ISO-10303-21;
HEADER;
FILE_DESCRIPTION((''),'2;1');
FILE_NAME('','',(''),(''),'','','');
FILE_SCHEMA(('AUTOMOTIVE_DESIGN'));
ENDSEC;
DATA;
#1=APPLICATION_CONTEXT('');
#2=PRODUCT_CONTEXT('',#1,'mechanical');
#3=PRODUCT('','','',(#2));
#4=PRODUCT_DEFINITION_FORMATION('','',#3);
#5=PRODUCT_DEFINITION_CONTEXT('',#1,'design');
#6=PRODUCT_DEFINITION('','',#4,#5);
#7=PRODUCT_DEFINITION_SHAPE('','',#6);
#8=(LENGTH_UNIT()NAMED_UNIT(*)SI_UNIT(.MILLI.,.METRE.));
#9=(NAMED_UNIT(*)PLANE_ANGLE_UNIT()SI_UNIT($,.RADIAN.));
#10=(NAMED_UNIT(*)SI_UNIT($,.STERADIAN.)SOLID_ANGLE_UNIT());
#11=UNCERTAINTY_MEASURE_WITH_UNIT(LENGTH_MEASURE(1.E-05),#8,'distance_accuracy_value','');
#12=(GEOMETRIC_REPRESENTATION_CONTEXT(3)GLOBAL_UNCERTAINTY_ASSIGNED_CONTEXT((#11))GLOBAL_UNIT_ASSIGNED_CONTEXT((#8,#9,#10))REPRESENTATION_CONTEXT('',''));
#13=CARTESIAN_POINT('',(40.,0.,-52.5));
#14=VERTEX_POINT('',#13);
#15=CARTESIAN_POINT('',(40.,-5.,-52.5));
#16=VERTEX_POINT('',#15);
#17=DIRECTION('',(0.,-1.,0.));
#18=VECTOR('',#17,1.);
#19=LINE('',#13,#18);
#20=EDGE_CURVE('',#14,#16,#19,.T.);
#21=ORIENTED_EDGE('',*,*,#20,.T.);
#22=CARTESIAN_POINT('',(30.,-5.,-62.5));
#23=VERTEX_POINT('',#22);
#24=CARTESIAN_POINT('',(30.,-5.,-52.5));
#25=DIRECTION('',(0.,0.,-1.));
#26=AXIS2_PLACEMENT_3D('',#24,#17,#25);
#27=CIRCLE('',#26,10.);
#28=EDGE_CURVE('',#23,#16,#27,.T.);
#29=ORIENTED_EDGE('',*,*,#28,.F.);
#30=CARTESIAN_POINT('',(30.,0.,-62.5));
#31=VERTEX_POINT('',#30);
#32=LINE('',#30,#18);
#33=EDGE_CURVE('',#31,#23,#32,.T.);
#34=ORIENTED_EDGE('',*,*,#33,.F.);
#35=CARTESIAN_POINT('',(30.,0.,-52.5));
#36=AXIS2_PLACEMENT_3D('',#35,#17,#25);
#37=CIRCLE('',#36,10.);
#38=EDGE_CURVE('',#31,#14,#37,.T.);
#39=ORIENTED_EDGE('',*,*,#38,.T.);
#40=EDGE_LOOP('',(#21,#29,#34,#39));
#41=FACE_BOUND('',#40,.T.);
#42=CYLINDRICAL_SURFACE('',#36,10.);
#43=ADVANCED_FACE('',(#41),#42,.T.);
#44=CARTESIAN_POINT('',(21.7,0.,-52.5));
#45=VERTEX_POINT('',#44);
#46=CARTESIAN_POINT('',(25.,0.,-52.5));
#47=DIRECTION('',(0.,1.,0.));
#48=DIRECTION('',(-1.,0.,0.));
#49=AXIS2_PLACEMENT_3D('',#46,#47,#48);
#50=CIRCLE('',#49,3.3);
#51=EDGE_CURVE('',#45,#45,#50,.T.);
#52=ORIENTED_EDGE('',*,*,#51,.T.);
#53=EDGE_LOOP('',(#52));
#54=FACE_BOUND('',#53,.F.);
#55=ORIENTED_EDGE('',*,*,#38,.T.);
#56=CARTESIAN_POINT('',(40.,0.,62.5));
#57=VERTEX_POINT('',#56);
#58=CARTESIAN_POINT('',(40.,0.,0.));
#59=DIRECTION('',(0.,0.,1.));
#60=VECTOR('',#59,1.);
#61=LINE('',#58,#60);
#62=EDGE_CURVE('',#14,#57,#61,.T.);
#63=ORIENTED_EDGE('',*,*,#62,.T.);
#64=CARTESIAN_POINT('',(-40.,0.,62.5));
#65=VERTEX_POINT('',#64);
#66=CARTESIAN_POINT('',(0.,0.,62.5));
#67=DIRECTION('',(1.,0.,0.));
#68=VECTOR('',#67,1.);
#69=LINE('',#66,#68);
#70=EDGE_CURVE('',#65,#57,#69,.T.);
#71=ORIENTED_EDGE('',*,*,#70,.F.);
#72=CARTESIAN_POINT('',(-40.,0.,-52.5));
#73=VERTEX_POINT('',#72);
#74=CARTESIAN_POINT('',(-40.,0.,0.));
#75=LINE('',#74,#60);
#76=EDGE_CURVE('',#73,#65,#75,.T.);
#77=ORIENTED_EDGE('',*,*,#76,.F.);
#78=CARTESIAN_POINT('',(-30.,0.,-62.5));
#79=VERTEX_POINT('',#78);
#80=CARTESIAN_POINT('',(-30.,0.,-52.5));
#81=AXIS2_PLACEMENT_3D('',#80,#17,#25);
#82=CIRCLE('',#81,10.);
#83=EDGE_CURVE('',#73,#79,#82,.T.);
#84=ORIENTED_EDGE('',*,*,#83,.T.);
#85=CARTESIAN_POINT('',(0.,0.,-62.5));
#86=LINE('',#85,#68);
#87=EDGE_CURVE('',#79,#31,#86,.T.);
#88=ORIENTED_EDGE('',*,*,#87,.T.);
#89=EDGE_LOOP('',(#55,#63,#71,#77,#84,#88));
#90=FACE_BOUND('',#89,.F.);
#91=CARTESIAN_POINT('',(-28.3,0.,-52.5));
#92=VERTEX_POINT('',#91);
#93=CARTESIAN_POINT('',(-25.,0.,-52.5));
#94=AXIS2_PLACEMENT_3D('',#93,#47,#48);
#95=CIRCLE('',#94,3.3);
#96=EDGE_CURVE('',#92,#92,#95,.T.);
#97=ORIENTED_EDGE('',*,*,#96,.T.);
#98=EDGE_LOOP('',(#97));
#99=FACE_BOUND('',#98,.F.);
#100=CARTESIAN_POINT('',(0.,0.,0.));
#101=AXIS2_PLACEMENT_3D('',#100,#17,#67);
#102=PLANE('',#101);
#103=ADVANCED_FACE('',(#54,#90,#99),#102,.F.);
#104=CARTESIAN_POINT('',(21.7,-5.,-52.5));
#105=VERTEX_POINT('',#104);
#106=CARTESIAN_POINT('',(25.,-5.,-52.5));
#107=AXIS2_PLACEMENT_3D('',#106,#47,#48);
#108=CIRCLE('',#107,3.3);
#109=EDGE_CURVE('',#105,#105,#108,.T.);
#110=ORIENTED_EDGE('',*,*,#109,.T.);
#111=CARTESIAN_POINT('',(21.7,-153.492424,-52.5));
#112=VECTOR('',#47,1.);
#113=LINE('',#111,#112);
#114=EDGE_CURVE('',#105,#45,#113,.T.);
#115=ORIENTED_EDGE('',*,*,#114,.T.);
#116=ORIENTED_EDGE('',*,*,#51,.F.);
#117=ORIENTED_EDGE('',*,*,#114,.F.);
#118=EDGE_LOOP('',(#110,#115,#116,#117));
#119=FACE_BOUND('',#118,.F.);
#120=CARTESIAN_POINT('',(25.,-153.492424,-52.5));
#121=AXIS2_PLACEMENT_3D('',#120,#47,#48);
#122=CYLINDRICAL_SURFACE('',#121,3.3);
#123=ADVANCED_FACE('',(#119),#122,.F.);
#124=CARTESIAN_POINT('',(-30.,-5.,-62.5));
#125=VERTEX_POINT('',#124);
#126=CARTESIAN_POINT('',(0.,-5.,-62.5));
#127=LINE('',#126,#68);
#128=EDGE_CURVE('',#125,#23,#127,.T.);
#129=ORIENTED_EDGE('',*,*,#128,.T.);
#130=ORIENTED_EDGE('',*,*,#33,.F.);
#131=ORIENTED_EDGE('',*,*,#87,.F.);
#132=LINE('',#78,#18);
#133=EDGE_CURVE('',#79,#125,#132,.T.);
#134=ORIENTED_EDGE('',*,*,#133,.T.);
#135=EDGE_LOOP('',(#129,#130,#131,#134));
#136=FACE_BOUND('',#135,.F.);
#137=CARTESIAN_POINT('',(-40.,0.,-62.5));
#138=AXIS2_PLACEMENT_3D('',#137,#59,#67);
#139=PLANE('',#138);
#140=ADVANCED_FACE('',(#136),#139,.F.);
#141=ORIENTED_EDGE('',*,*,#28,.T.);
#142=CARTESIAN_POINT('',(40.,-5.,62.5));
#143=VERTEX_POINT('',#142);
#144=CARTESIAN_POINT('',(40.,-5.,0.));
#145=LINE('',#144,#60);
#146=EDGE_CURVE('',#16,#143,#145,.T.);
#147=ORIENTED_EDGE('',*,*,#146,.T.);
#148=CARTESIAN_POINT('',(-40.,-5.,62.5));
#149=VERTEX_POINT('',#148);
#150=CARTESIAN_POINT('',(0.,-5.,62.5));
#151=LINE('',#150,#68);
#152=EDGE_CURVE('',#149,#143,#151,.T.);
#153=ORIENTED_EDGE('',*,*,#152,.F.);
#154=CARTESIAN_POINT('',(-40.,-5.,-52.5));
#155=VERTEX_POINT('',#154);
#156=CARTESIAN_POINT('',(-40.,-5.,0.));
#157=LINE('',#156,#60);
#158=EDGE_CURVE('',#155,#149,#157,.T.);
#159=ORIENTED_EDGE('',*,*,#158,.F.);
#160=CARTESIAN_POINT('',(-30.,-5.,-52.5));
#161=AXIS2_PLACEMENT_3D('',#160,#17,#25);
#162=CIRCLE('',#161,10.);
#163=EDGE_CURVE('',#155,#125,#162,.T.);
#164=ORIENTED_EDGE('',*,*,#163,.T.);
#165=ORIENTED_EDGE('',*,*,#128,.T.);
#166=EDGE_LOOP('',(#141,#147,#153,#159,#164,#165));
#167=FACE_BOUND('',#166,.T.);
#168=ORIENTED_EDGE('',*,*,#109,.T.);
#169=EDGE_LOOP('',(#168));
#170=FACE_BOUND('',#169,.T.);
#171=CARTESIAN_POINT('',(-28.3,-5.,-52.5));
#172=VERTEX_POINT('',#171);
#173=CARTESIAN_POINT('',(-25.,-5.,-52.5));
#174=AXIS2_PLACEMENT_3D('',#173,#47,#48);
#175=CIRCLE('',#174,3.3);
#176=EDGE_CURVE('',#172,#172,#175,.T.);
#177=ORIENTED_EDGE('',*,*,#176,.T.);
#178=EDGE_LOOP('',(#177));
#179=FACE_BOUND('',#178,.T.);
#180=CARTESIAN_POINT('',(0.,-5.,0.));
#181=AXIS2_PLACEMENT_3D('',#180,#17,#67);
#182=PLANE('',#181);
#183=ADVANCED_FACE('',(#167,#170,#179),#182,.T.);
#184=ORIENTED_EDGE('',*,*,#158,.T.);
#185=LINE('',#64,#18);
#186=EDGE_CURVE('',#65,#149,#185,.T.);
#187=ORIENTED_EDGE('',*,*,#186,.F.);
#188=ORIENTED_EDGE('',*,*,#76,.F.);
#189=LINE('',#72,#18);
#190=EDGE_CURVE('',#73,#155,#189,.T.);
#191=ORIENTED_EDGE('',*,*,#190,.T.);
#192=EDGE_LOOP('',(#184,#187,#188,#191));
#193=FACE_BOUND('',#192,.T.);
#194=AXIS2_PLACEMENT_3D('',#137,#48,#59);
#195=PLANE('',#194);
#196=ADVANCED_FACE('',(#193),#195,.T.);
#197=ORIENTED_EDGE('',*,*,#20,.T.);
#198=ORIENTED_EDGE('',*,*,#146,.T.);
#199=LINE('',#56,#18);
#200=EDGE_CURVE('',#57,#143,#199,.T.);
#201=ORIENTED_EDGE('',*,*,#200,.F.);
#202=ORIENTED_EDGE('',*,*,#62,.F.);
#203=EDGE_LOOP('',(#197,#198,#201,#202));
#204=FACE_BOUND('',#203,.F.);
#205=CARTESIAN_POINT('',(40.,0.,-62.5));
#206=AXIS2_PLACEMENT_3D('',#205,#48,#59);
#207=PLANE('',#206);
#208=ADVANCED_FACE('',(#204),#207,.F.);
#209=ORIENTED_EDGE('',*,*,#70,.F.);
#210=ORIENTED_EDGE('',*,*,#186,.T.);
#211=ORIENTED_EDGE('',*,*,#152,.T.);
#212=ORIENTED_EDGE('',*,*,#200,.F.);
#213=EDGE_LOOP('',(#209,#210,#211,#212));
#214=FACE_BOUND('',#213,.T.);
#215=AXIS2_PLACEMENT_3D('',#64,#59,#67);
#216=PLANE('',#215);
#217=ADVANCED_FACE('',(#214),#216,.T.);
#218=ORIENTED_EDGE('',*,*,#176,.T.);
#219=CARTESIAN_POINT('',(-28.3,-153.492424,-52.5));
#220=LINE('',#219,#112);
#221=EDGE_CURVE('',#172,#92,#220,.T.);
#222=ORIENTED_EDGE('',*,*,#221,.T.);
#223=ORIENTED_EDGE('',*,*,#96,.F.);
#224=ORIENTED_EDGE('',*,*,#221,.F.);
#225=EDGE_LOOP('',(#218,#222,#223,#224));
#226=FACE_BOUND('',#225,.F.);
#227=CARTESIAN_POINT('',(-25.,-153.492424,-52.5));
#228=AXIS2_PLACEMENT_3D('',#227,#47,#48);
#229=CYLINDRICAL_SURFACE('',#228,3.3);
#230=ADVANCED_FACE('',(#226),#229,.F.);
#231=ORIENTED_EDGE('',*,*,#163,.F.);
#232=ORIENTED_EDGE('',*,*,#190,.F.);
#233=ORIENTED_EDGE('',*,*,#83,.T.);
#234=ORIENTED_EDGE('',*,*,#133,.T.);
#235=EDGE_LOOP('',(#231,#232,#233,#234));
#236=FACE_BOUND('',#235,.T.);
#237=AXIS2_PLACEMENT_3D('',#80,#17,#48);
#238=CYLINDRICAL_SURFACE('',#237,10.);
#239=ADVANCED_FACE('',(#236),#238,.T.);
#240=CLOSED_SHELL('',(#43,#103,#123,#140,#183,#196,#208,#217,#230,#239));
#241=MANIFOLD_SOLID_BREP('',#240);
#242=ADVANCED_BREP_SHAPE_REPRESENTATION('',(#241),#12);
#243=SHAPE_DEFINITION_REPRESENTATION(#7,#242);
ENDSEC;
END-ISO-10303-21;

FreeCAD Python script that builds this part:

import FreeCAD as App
import Part
import Sketcher

V = App.Vector


def edges_at(feature, points):
    """Names of the edges that pass closest to the given points."""
    edges = feature.Shape.Edges
    near = lambda p: min(range(len(edges)), key=lambda i: edges[i].distToShape(Part.Vertex(*p))[0])
    return sorted({f"Edge{near(p) + 1}" for p in points})

doc = App.newDocument("Part")
body = doc.addObject("PartDesign::Body", "Body")

sketch1 = body.newObject("Sketcher::SketchObject", "Sketch")
sketch1.AttachmentSupport = (doc.getObject("XZ_Plane"), [""])
sketch1.MapMode = "FlatFace"
sketch1.addGeometry([
    Part.LineSegment(V(-40, 62, 0), V(-40, -62, 0)),
    Part.LineSegment(V(-40, -62, 0), V(40, -62, 0)),
    Part.LineSegment(V(40, -62, 0), V(40, 62, 0)),
    Part.LineSegment(V(40, 62, 0), V(-40, 62, 0)),
], False)
sketch1.addConstraint([
    Sketcher.Constraint("Coincident", 0, 2, 1, 1),
    Sketcher.Constraint("Coincident", 1, 2, 2, 1),
    Sketcher.Constraint("Coincident", 2, 2, 3, 1),
    Sketcher.Constraint("Coincident", 3, 2, 0, 1),
    Sketcher.Constraint("Vertical", 0),
    Sketcher.Constraint("Horizontal", 1),
    Sketcher.Constraint("Vertical", 2),
    Sketcher.Constraint("Horizontal", 3),
    Sketcher.Constraint("Symmetric", 0, 2, 2, 2, -1, 1),
    Sketcher.Constraint("DistanceX", 1, 1, 1, 2, 80.0),
    Sketcher.Constraint("DistanceY", 0, 2, 0, 1, 125.0),
])
pad1 = body.newObject("PartDesign::Pad", "Pad")
pad1.Profile = sketch1
pad1.Length = 5

sketch2 = body.newObject("Sketcher::SketchObject", "Sketch001")
sketch2.AttachmentSupport = (doc.getObject("XZ_Plane"), [""])
sketch2.MapMode = "FlatFace"
sketch2.AttachmentOffset = App.Placement(V(0, 0, 5), App.Rotation())
sketch2.addGeometry([
    Part.Circle(V(-25, -52.5, 0), V(0, 0, 1), 3.3),
    Part.Circle(V(25, -52.5, 0), V(0, 0, 1), 3.3),
], False)
sketch2.addConstraint([
    Sketcher.Constraint("Equal", 0, 1),
    Sketcher.Constraint("Symmetric", 0, 3, 1, 3, -2),
    Sketcher.Constraint("Diameter", 0, 6.6),
    Sketcher.Constraint("DistanceX", 0, 3, -1, 1, 25.0),
    Sketcher.Constraint("DistanceY", 0, 3, -1, 1, 52.5),
])
doc.recompute()
hole = body.newObject("PartDesign::Hole", "Hole")
hole.Profile = sketch2
hole.ThreadType = "None"
hole.Diameter = 6.6
hole.DepthType = "ThroughAll"
doc.recompute()

fillet = body.newObject("PartDesign::Fillet", "Fillet")
fillet.Base = (hole, edges_at(hole, [(40, -2.5, -62.5), (-40, -2.5, -62.5)]))
fillet.Radius = 10

doc.recompute()
